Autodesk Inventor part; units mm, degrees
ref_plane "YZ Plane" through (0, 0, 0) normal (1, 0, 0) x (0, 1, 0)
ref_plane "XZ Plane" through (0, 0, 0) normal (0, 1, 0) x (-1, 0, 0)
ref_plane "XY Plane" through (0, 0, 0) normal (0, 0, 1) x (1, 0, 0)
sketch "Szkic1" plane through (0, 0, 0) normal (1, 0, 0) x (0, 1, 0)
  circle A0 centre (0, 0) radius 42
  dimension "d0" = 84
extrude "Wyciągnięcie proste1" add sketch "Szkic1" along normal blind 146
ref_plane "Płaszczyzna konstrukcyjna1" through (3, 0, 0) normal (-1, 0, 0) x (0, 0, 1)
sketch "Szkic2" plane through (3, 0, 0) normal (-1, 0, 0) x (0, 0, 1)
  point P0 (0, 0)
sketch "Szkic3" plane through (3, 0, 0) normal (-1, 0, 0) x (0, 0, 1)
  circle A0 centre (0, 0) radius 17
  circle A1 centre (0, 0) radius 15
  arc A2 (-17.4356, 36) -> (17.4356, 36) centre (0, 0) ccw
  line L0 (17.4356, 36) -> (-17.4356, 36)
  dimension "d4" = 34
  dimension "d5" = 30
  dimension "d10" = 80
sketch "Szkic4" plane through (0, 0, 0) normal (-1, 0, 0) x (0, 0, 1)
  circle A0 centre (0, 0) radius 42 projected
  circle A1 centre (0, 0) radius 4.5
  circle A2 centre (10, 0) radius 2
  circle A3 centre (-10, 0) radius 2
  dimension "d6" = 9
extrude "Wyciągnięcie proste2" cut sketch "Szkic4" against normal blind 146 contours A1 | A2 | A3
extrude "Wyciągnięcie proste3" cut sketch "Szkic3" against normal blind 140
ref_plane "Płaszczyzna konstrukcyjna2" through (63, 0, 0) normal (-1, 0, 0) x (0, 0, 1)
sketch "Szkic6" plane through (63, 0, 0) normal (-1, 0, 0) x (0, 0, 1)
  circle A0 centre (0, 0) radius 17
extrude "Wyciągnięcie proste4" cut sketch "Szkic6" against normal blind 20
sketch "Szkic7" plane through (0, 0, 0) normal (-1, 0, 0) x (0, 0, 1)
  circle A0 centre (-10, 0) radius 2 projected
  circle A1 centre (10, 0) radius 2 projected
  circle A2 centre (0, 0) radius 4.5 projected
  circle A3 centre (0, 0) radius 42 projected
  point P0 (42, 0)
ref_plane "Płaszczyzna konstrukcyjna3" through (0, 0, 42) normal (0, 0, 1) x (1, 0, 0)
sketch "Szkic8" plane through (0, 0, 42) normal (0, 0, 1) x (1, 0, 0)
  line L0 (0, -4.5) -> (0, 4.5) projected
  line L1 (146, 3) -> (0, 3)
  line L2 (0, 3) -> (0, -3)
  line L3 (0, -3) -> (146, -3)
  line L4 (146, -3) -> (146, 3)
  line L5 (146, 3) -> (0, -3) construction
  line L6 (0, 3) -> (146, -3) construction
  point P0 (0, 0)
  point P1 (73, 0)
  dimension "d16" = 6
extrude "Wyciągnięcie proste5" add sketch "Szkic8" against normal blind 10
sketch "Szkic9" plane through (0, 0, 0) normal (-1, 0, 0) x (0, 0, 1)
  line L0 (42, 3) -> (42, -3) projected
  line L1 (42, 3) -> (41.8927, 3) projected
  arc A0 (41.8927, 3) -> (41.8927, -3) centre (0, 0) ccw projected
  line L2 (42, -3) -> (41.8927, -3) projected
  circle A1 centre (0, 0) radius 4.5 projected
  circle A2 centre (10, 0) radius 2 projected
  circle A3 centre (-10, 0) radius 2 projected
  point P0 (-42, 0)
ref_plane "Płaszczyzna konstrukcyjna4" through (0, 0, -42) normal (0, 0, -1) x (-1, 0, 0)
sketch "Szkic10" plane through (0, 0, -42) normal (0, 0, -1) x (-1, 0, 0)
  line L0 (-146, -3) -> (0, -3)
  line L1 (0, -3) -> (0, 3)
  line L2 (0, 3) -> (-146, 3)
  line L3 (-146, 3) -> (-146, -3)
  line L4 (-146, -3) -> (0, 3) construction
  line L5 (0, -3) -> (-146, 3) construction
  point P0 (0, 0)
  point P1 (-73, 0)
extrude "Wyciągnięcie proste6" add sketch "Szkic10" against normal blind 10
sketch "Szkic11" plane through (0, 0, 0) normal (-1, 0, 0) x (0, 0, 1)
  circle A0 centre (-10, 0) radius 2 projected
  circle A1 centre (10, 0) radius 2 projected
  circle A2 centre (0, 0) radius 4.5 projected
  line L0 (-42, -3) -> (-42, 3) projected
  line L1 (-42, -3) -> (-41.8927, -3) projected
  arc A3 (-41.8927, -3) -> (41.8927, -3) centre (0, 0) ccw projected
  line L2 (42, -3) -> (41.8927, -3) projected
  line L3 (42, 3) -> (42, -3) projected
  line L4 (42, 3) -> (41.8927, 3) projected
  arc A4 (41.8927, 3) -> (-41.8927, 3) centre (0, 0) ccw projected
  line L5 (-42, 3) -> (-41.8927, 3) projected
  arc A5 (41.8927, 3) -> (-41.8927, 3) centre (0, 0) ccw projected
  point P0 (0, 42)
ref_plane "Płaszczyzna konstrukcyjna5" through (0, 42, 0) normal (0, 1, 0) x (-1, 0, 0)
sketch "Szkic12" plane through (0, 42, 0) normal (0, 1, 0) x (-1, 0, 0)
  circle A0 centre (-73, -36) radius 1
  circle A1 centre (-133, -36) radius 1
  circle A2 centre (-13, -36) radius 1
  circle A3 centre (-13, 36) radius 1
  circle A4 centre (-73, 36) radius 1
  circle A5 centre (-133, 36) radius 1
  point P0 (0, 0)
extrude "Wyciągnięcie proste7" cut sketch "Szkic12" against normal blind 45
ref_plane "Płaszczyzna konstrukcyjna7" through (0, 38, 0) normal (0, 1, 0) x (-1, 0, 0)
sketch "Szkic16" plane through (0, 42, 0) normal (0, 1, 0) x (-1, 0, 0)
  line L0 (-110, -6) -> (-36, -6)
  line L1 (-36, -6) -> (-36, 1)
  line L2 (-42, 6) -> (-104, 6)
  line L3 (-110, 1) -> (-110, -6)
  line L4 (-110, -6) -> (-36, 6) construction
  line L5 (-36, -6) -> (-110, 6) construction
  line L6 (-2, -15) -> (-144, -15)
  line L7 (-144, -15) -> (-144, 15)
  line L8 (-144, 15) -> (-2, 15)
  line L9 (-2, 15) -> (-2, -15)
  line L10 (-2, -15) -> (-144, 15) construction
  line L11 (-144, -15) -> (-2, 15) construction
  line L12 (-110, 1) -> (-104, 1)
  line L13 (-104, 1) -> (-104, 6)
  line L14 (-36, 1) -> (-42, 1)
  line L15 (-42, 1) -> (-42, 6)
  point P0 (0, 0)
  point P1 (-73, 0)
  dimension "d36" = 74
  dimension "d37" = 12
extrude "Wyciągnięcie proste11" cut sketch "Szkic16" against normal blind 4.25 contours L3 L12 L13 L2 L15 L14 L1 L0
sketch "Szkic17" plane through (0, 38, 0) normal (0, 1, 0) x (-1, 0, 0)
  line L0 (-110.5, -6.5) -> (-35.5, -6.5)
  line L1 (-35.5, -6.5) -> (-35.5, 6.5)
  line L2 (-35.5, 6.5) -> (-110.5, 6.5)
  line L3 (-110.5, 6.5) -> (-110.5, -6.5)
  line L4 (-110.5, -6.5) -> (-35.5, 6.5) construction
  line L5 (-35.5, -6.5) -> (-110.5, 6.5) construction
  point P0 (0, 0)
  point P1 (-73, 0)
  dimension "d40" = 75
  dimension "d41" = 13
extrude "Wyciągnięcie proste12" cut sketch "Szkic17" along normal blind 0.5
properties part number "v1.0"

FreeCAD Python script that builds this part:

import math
import FreeCAD as App
import Part
import Sketcher

V = App.Vector


def add_polygon(sketch, points):
    """Adds a closed chain of lines whose ends are joined by coincident constraints."""
    first, n = sketch.GeometryCount, len(points)
    for a, b in zip(points, points[1:] + points[:1]):
        sketch.addGeometry(Part.LineSegment(App.Vector(*a, 0), App.Vector(*b, 0)), False)
    for i in range(n):
        sketch.addConstraint(Sketcher.Constraint("Coincident", first + i, 2, first + (i + 1) % n, 1))

doc = App.newDocument("Part")
params = doc.addObject("Spreadsheet::Sheet", "Params")
for row, (alias, value) in enumerate([
    ("sketch1_diameter", "84 mm"),
    ("pad1_length", "146 mm"),
    ("sketch2_diameter", "9 mm"),
    ("sketch2_diameter2", "4 mm"),
    ("pocket1_length", "146 mm"),
    ("sketch3_diameter", "30 mm"),
    ("sketch3_diameter2", "34 mm"),
    ("sketch3_radius", "40 mm"),
    ("pocket2_length", "140 mm"),
    ("sketch4_diameter", "34 mm"),
    ("pocket3_length", "20 mm"),
    ("sketch5_height", "6 mm"),
    ("sketch5_width", "146 mm"),
    ("pad2_length", "10 mm"),
    ("sketch6_width", "146 mm"),
    ("sketch6_height", "6 mm"),
    ("pad3_length", "10 mm"),
    ("sketch7_diameter", "2 mm"),
    ("pocket4_length", "45 mm"),
    ("sketch8_width", "74 mm"),
    ("sketch8_width2", "6 mm"),
    ("sketch8_height", "7 mm"),
    ("pocket5_length", "4.25 mm"),
    ("sketch9_width", "75 mm"),
    ("sketch9_height", "13 mm"),
    ("pocket6_length", "0.5 mm"),
], start=1):
    params.set(f"A{row}", alias)
    params.set(f"B{row}", "=" + value)
    params.setAlias(f"B{row}", alias)

body = doc.addObject("PartDesign::Body", "Body")

sketch1 = body.newObject("Sketcher::SketchObject", "Sketch")
sketch1.AttachmentSupport = (doc.getObject("YZ_Plane"), [""])
sketch1.MapMode = "FlatFace"
sketch1.addGeometry(Part.Circle(V(0, 0, 0), V(0, 0, 1), 42), False)
sketch1.addConstraint(Sketcher.Constraint("Coincident", 0, 3, -1, 1))
sketch1.addConstraint(Sketcher.Constraint("Diameter", 0, 84.0))
sketch1.setExpression("Constraints[1]", "Params.sketch1_diameter")
pad1 = body.newObject("PartDesign::Pad", "Pad")
pad1.Profile = sketch1
pad1.setExpression("Length", "Params.pad1_length")

sketch2 = body.newObject("Sketcher::SketchObject", "Sketch001")
sketch2.AttachmentSupport = (doc.getObject("YZ_Plane"), [""])
sketch2.MapMode = "FlatFace"
sketch2.addGeometry(Part.Circle(V(0, 0, 0), V(0, 0, 1), 4.5), False)
sketch2.addGeometry(Part.Circle(V(0, 10, 0), V(0, 0, 1), 2), False)
sketch2.addGeometry(Part.Circle(V(0, -10, 0), V(0, 0, 1), 2), False)
sketch2.addConstraint(Sketcher.Constraint("Coincident", 0, 3, -1, 1))
sketch2.addConstraint(Sketcher.Constraint("Equal", 1, 2))
sketch2.addConstraint(Sketcher.Constraint("Symmetric", 1, 3, 2, 3, -1, 1))
sketch2.addConstraint(Sketcher.Constraint("PointOnObject", 1, 3, -2))
sketch2.addConstraint(Sketcher.Constraint("Diameter", 0, 9.0))
sketch2.addConstraint(Sketcher.Constraint("Diameter", 1, 4.0))
sketch2.addConstraint(Sketcher.Constraint("DistanceY", -1, 1, 1, 3, 10.0))
sketch2.setExpression("Constraints[4]", "Params.sketch2_diameter")
sketch2.setExpression("Constraints[5]", "Params.sketch2_diameter2")
pocket1 = body.newObject("PartDesign::Pocket", "Pocket")
pocket1.Profile = sketch2
pocket1.setExpression("Length", "Params.pocket1_length")
pocket1.Reversed = True

sketch3 = body.newObject("Sketcher::SketchObject", "Sketch002")
sketch3.AttachmentSupport = (doc.getObject("YZ_Plane"), [""])
sketch3.MapMode = "FlatFace"
sketch3.AttachmentOffset = App.Placement(V(0, 0, 3), App.Rotation())
sketch3.addGeometry(Part.Circle(V(0, 0, 0), V(0, 0, 1), 15), False)
sketch3.addGeometry(Part.LineSegment(V(36, 17, 0), V(36, -17, 0)), False)
sketch3.addGeometry(Part.ArcOfCircle(Part.Circle(V(0, 0, 0), V(0, 0, 1), 40), math.radians(26), math.radians(334)), False)
sketch3.addGeometry(Part.Circle(V(0, 0, 0), V(0, 0, 1), 17), False)
sketch3.addConstraint(Sketcher.Constraint("Coincident", 1, 1, 2, 1))
sketch3.addConstraint(Sketcher.Constraint("Coincident", 2, 2, 1, 2))
sketch3.addConstraint(Sketcher.Constraint("Vertical", 1))
sketch3.addConstraint(Sketcher.Constraint("Coincident", 0, 3, -1, 1))
sketch3.addConstraint(Sketcher.Constraint("Coincident", 2, 3, -1, 1))
sketch3.addConstraint(Sketcher.Constraint("Coincident", 3, 3, -1, 1))
sketch3.addConstraint(Sketcher.Constraint("Diameter", 0, 30.0))
sketch3.addConstraint(Sketcher.Constraint("Diameter", 3, 34.0))
sketch3.addConstraint(Sketcher.Constraint("Radius", 2, 40.0))
sketch3.addConstraint(Sketcher.Constraint("DistanceX", -1, 1, 1, 1, 36.0))
sketch3.setExpression("Constraints[6]", "Params.sketch3_diameter")
sketch3.setExpression("Constraints[7]", "Params.sketch3_diameter2")
sketch3.setExpression("Constraints[8]", "Params.sketch3_radius")
pocket2 = body.newObject("PartDesign::Pocket", "Pocket001")
pocket2.Profile = sketch3
pocket2.setExpression("Length", "Params.pocket2_length")
pocket2.Reversed = True

sketch4 = body.newObject("Sketcher::SketchObject", "Sketch003")
sketch4.AttachmentSupport = (doc.getObject("YZ_Plane"), [""])
sketch4.MapMode = "FlatFace"
sketch4.AttachmentOffset = App.Placement(V(0, 0, 63), App.Rotation())
sketch4.addGeometry(Part.Circle(V(0, 0, 0), V(0, 0, 1), 17), False)
sketch4.addConstraint(Sketcher.Constraint("Coincident", 0, 3, -1, 1))
sketch4.addConstraint(Sketcher.Constraint("Diameter", 0, 34.0))
sketch4.setExpression("Constraints[1]", "Params.sketch4_diameter")
pocket3 = body.newObject("PartDesign::Pocket", "Pocket002")
pocket3.Profile = sketch4
pocket3.setExpression("Length", "Params.pocket3_length")
pocket3.Reversed = True

sketch5 = body.newObject("Sketcher::SketchObject", "Sketch004")
sketch5.AttachmentSupport = (doc.getObject("XY_Plane"), [""])
sketch5.MapMode = "FlatFace"
sketch5.AttachmentOffset = App.Placement(V(0, 0, 42), App.Rotation())
add_polygon(sketch5, [(0, 3), (0, -3), (146, -3), (146, 3)])
sketch5.addConstraint(Sketcher.Constraint("Vertical", 0))
sketch5.addConstraint(Sketcher.Constraint("Horizontal", 1))
sketch5.addConstraint(Sketcher.Constraint("Vertical", 2))
sketch5.addConstraint(Sketcher.Constraint("Horizontal", 3))
sketch5.addConstraint(Sketcher.Constraint("Symmetric", 0, 2, 3, 2, -1, 1))
sketch5.addConstraint(Sketcher.Constraint("DistanceY", 0, 2, 0, 1, 6.0))
sketch5.addConstraint(Sketcher.Constraint("DistanceX", 1, 1, 1, 2, 146.0))
sketch5.setExpression("Constraints[9]", "Params.sketch5_height")
sketch5.setExpression("Constraints[10]", "Params.sketch5_width")
pad2 = body.newObject("PartDesign::Pad", "Pad001")
pad2.Profile = sketch5
pad2.setExpression("Length", "Params.pad2_length")
pad2.Reversed = True

sketch6 = body.newObject("Sketcher::SketchObject", "Sketch005")
sketch6.AttachmentSupport = (doc.getObject("XY_Plane"), [""])
sketch6.MapMode = "FlatFace"
sketch6.AttachmentOffset = App.Placement(V(0, 0, -42), App.Rotation())
add_polygon(sketch6, [(146, 3), (146, -3), (0, -3), (0, 3)])
sketch6.addConstraint(Sketcher.Constraint("Vertical", 0))
sketch6.addConstraint(Sketcher.Constraint("Horizontal", 1))
sketch6.addConstraint(Sketcher.Constraint("Vertical", 2))
sketch6.addConstraint(Sketcher.Constraint("Horizontal", 3))
sketch6.addConstraint(Sketcher.Constraint("Symmetric", 1, 2, 2, 2, -1, 1))
sketch6.addConstraint(Sketcher.Constraint("DistanceX", 1, 2, 1, 1, 146.0))
sketch6.addConstraint(Sketcher.Constraint("DistanceY", 0, 2, 0, 1, 6.0))
sketch6.setExpression("Constraints[9]", "Params.sketch6_width")
sketch6.setExpression("Constraints[10]", "Params.sketch6_height")
pad3 = body.newObject("PartDesign::Pad", "Pad002")
pad3.Profile = sketch6
pad3.setExpression("Length", "Params.pad3_length")

sketch7 = body.newObject("Sketcher::SketchObject", "Sketch006")
sketch7.AttachmentSupport = (doc.getObject("XZ_Plane"), [""])
sketch7.MapMode = "FlatFace"
sketch7.AttachmentOffset = App.Placement(V(0, 0, -42), App.Rotation())
sketch7.addGeometry(Part.Circle(V(73, -36, 0), V(0, 0, 1), 1), False)
sketch7.addGeometry(Part.Circle(V(133, -36, 0), V(0, 0, 1), 1), False)
sketch7.addGeometry(Part.Circle(V(13, -36, 0), V(0, 0, 1), 1), False)
sketch7.addGeometry(Part.Circle(V(13, 36, 0), V(0, 0, 1), 1), False)
sketch7.addGeometry(Part.Circle(V(73, 36, 0), V(0, 0, 1), 1), False)
sketch7.addGeometry(Part.Circle(V(133, 36, 0), V(0, 0, 1), 1), False)
sketch7.addConstraint(Sketcher.Constraint("Equal", 0, 1))
sketch7.addConstraint(Sketcher.Constraint("Equal", 1, 2))
sketch7.addConstraint(Sketcher.Constraint("Equal", 2, 3))
sketch7.addConstraint(Sketcher.Constraint("Equal", 3, 4))
sketch7.addConstraint(Sketcher.Constraint("Equal", 4, 5))
sketch7.addConstraint(Sketcher.Constraint("Symmetric", 2, 3, 3, 3, -1))
sketch7.addConstraint(Sketcher.Constraint("Symmetric", 0, 3, 4, 3, -1))
sketch7.addConstraint(Sketcher.Constraint("Symmetric", 1, 3, 5, 3, -1))
sketch7.addConstraint(Sketcher.Constraint("Horizontal", 0, 3, 1, 3))
sketch7.addConstraint(Sketcher.Constraint("Horizontal", 1, 3, 2, 3))
sketch7.addConstraint(Sketcher.Constraint("Diameter", 0, 2.0))
sketch7.addConstraint(Sketcher.Constraint("DistanceX", -1, 1, 0, 3, 73.0))
sketch7.addConstraint(Sketcher.Constraint("DistanceY", 0, 3, -1, 1, 36.0))
sketch7.addConstraint(Sketcher.Constraint("DistanceX", -1, 1, 1, 3, 133.0))
sketch7.addConstraint(Sketcher.Constraint("DistanceX", -1, 1, 2, 3, 13.0))
sketch7.setExpression("Constraints[10]", "Params.sketch7_diameter")
pocket4 = body.newObject("PartDesign::Pocket", "Pocket003")
pocket4.Profile = sketch7
pocket4.setExpression("Length", "Params.pocket4_length")
pocket4.Reversed = True

sketch8 = body.newObject("Sketcher::SketchObject", "Sketch007")
sketch8.AttachmentSupport = (doc.getObject("XZ_Plane"), [""])
sketch8.MapMode = "FlatFace"
sketch8.AttachmentOffset = App.Placement(V(0, 0, -42), App.Rotation())
add_polygon(sketch8, [(110, 1), (110, -6), (36, -6), (36, 1), (42, 1), (42, 6), (104, 6), (104, 1)])
sketch8.addConstraint(Sketcher.Constraint("Vertical", 0))
sketch8.addConstraint(Sketcher.Constraint("Horizontal", 1))
sketch8.addConstraint(Sketcher.Constraint("Vertical", 2))
sketch8.addConstraint(Sketcher.Constraint("Horizontal", 3))
sketch8.addConstraint(Sketcher.Constraint("Vertical", 4))
sketch8.addConstraint(Sketcher.Constraint("Horizontal", 5))
sketch8.addConstraint(Sketcher.Constraint("Vertical", 6))
sketch8.addConstraint(Sketcher.Constraint("Horizontal", 7))
sketch8.addConstraint(Sketcher.Constraint("Horizontal", 3, 2, 6, 2))
sketch8.addConstraint(Sketcher.Constraint("Equal", 3, 7))
sketch8.addConstraint(Sketcher.Constraint("DistanceX", 1, 2, 1, 1, 74.0))
sketch8.addConstraint(Sketcher.Constraint("DistanceY", 1, 2, 4, 2, 12.0))
sketch8.addConstraint(Sketcher.Constraint("DistanceX", 3, 1, 3, 2, 6.0))
sketch8.addConstraint(Sketcher.Constraint("DistanceY", 0, 2, 0, 1, 7.0))
sketch8.addConstraint(Sketcher.Constraint("DistanceX", -1, 1, 0, 2, 110.0))
sketch8.addConstraint(Sketcher.Constraint("DistanceY", 0, 2, -1, 1, 6.0))
sketch8.setExpression("Constraints[18]", "Params.sketch8_width")
sketch8.setExpression("Constraints[20]", "Params.sketch8_width2")
sketch8.setExpression("Constraints[21]", "Params.sketch8_height")
pocket5 = body.newObject("PartDesign::Pocket", "Pocket004")
pocket5.Profile = sketch8
pocket5.setExpression("Length", "Params.pocket5_length")
pocket5.Reversed = True

sketch9 = body.newObject("Sketcher::SketchObject", "Sketch008")
sketch9.AttachmentSupport = (doc.getObject("XZ_Plane"), [""])
sketch9.MapMode = "FlatFace"
sketch9.AttachmentOffset = App.Placement(V(0, 0, -38), App.Rotation())
add_polygon(sketch9, [(110, 6), (110, -6), (36, -6), (36, 6)])
sketch9.addConstraint(Sketcher.Constraint("Vertical", 0))
sketch9.addConstraint(Sketcher.Constraint("Horizontal", 1))
sketch9.addConstraint(Sketcher.Constraint("Vertical", 2))
sketch9.addConstraint(Sketcher.Constraint("Horizontal", 3))
sketch9.addConstraint(Sketcher.Constraint("DistanceX", 1, 2, 1, 1, 75.0))
sketch9.addConstraint(Sketcher.Constraint("DistanceY", 0, 2, 0, 1, 13.0))
sketch9.addConstraint(Sketcher.Constraint("DistanceX", -1, 1, 0, 2, 110.5))
sketch9.addConstraint(Sketcher.Constraint("DistanceY", 0, 2, -1, 1, 6.5))
sketch9.setExpression("Constraints[8]", "Params.sketch9_width")
sketch9.setExpression("Constraints[9]", "Params.sketch9_height")
pocket6 = body.newObject("PartDesign::Pocket", "Pocket005")
pocket6.Profile = sketch9
pocket6.setExpression("Length", "Params.pocket6_length")

doc.recompute()
